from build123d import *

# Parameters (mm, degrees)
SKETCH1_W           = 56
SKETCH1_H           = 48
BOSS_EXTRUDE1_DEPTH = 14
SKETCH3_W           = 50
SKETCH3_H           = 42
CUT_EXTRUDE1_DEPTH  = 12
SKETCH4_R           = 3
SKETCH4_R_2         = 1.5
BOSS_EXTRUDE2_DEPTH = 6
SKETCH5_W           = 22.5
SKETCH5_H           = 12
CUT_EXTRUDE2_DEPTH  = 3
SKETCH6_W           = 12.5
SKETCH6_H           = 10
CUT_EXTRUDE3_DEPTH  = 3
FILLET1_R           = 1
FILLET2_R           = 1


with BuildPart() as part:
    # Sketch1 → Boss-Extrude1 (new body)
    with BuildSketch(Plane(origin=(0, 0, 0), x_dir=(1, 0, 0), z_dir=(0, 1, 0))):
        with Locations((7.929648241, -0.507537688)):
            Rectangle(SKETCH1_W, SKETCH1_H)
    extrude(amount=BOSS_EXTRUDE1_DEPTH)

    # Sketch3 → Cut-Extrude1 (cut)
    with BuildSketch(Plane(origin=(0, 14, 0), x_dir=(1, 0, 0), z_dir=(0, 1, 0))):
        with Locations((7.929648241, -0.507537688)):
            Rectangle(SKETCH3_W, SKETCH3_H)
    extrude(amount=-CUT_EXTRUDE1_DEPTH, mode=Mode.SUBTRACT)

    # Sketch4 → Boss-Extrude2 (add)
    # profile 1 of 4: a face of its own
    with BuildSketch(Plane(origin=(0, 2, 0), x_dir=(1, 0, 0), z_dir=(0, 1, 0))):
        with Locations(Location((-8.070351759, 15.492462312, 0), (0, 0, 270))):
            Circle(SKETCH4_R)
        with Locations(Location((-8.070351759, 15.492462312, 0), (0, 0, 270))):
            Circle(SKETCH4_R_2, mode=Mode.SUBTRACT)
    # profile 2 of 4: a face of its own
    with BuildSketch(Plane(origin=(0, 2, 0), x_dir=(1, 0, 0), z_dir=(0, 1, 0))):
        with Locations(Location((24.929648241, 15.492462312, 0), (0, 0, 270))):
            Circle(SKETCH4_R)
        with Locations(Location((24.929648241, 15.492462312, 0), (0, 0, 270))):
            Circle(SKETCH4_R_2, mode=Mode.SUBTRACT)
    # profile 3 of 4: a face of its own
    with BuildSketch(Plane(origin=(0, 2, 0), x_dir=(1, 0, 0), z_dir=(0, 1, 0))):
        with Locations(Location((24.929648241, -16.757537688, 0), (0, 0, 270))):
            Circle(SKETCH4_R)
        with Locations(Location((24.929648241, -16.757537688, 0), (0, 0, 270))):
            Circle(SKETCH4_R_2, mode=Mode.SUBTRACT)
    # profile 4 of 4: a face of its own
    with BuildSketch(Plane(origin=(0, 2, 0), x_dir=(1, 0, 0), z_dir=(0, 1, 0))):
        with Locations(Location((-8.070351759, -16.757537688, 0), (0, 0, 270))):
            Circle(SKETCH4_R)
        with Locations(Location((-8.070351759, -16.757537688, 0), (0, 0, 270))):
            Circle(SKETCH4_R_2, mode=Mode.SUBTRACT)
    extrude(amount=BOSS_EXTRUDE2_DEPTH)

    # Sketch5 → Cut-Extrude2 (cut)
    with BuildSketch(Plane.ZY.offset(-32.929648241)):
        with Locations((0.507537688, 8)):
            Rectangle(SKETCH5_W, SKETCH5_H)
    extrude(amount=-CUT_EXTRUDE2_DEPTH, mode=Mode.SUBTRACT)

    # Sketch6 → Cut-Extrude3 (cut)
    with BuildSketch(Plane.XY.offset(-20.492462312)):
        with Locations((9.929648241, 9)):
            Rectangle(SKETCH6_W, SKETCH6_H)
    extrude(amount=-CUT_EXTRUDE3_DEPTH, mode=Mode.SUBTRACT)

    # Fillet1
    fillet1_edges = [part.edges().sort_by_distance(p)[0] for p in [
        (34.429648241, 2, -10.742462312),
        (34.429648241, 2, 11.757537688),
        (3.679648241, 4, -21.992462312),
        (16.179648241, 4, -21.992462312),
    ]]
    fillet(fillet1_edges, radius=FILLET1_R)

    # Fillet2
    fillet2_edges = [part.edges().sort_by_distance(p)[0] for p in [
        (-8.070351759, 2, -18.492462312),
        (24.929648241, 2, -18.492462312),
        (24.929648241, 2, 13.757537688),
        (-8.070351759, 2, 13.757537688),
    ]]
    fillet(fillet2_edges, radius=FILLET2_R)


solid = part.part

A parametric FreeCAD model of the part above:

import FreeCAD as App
import Part
import Sketcher


def edges_at(feature, points):
    """Names of the edges that pass closest to the given points."""
    edges = feature.Shape.Edges
    near = lambda p: min(range(len(edges)), key=lambda i: edges[i].distToShape(Part.Vertex(*p))[0])
    return sorted({f"Edge{near(p) + 1}" for p in points})

doc = App.newDocument("Part")
body = doc.addObject("PartDesign::Body", "Body")

# Sketch on XZ plane
sketch1 = doc.addObject("Sketcher::SketchObject", "Sketch")
body.addObject(sketch1)
sketch1.AttachmentSupport = (doc.XZ_Plane, [""])
sketch1.MapMode = "FlatFace"
sketch1.addGeometry(Part.LineSegment(App.Vector(-20, -23, 0), App.Vector(-20, 25, 0)), False)
sketch1.addGeometry(Part.LineSegment(App.Vector(-20, 25, 0), App.Vector(36, 25, 0)), False)
sketch1.addGeometry(Part.LineSegment(App.Vector(36, 25, 0), App.Vector(36, -23, 0)), False)
sketch1.addGeometry(Part.LineSegment(App.Vector(36, -23, 0), App.Vector(-20, -23, 0)), False)
sketch1.addConstraint(Sketcher.Constraint("Coincident", 0, 2, 1, 1))
sketch1.addConstraint(Sketcher.Constraint("Coincident", 1, 2, 2, 1))
sketch1.addConstraint(Sketcher.Constraint("Coincident", 2, 2, 3, 1))
sketch1.addConstraint(Sketcher.Constraint("Coincident", 3, 2, 0, 1))
sketch1.addConstraint(Sketcher.Constraint("Vertical", 0))
sketch1.addConstraint(Sketcher.Constraint("Horizontal", 1))
sketch1.addConstraint(Sketcher.Constraint("Vertical", 2))
sketch1.addConstraint(Sketcher.Constraint("Horizontal", 3))
sketch1.addConstraint(Sketcher.Constraint("DistanceX", 1, 1, 1, 2, 56.0))
sketch1.addConstraint(Sketcher.Constraint("DistanceY", 0, 1, 0, 2, 48.0))
sketch1.addConstraint(Sketcher.Constraint("DistanceX", 0, 2, -1, 1, 20.070352))
sketch1.addConstraint(Sketcher.Constraint("DistanceY", -1, 1, 0, 2, 24.507538))
pad1 = doc.addObject("PartDesign::Pad", "Pad")
body.addObject(pad1)
pad1.Profile = sketch1
pad1.Length = 14
pad1.Reversed = True

# Sketch on XZ plane
sketch2 = doc.addObject("Sketcher::SketchObject", "Sketch001")
body.addObject(sketch2)
sketch2.AttachmentSupport = (doc.XZ_Plane, [""])
sketch2.MapMode = "FlatFace"
sketch2.AttachmentOffset = App.Placement(App.Vector(0, 0, -14), App.Rotation())
sketch2.addGeometry(Part.LineSegment(App.Vector(-17, -20, 0), App.Vector(-17, 22, 0)), False)
sketch2.addGeometry(Part.LineSegment(App.Vector(-17, 22, 0), App.Vector(33, 22, 0)), False)
sketch2.addGeometry(Part.LineSegment(App.Vector(33, 22, 0), App.Vector(33, -20, 0)), False)
sketch2.addGeometry(Part.LineSegment(App.Vector(33, -20, 0), App.Vector(-17, -20, 0)), False)
sketch2.addConstraint(Sketcher.Constraint("Coincident", 0, 2, 1, 1))
sketch2.addConstraint(Sketcher.Constraint("Coincident", 1, 2, 2, 1))
sketch2.addConstraint(Sketcher.Constraint("Coincident", 2, 2, 3, 1))
sketch2.addConstraint(Sketcher.Constraint("Coincident", 3, 2, 0, 1))
sketch2.addConstraint(Sketcher.Constraint("Vertical", 0))
sketch2.addConstraint(Sketcher.Constraint("Horizontal", 1))
sketch2.addConstraint(Sketcher.Constraint("Vertical", 2))
sketch2.addConstraint(Sketcher.Constraint("Horizontal", 3))
sketch2.addConstraint(Sketcher.Constraint("DistanceX", 1, 1, 1, 2, 50.0))
sketch2.addConstraint(Sketcher.Constraint("DistanceY", 0, 1, 0, 2, 42.0))
sketch2.addConstraint(Sketcher.Constraint("DistanceX", 0, 2, -1, 1, 17.070352))
sketch2.addConstraint(Sketcher.Constraint("DistanceY", -1, 1, 0, 2, 21.507538))
pocket1 = doc.addObject("PartDesign::Pocket", "Pocket")
body.addObject(pocket1)
pocket1.Profile = sketch2
pocket1.Length = 12
pocket1.Reversed = True

# Sketch on XZ plane
sketch3 = doc.addObject("Sketcher::SketchObject", "Sketch002")
body.addObject(sketch3)
sketch3.AttachmentSupport = (doc.XZ_Plane, [""])
sketch3.MapMode = "FlatFace"
sketch3.AttachmentOffset = App.Placement(App.Vector(0, 0, -2), App.Rotation())
sketch3.addGeometry(Part.Circle(App.Vector(-8.1, -15.5, 0), App.Vector(0, 0, 1), 3), False)
sketch3.addGeometry(Part.Circle(App.Vector(-8.1, -15.5, 0), App.Vector(0, 0, 1), 1.5), False)
sketch3.addGeometry(Part.Circle(App.Vector(24.9, -15.5, 0), App.Vector(0, 0, 1), 3), False)
sketch3.addGeometry(Part.Circle(App.Vector(24.9, -15.5, 0), App.Vector(0, 0, 1), 1.5), False)
sketch3.addGeometry(Part.Circle(App.Vector(24.9, 16.8, 0), App.Vector(0, 0, 1), 3), False)
sketch3.addGeometry(Part.Circle(App.Vector(24.9, 16.8, 0), App.Vector(0, 0, 1), 1.5), False)
sketch3.addGeometry(Part.Circle(App.Vector(-8.1, 16.8, 0), App.Vector(0, 0, 1), 3), False)
sketch3.addGeometry(Part.Circle(App.Vector(-8.1, 16.8, 0), App.Vector(0, 0, 1), 1.5), False)
sketch3.addConstraint(Sketcher.Constraint("Coincident", 1, 3, 0, 3))
sketch3.addConstraint(Sketcher.Constraint("Coincident", 3, 3, 2, 3))
sketch3.addConstraint(Sketcher.Constraint("Coincident", 5, 3, 4, 3))
sketch3.addConstraint(Sketcher.Constraint("Coincident", 7, 3, 6, 3))
sketch3.addConstraint(Sketcher.Constraint("Equal", 0, 2))
sketch3.addConstraint(Sketcher.Constraint("Equal", 1, 3))
sketch3.addConstraint(Sketcher.Constraint("Equal", 2, 4))
sketch3.addConstraint(Sketcher.Constraint("Equal", 3, 5))
sketch3.addConstraint(Sketcher.Constraint("Equal", 4, 6))
sketch3.addConstraint(Sketcher.Constraint("Equal", 5, 7))
sketch3.addConstraint(Sketcher.Constraint("Horizontal", 1, 3, 2, 3))
sketch3.addConstraint(Sketcher.Constraint("Horizontal", 5, 3, 6, 3))
sketch3.addConstraint(Sketcher.Constraint("Vertical", 3, 3, 4, 3))
sketch3.addConstraint(Sketcher.Constraint("Vertical", 1, 3, 6, 3))
sketch3.addConstraint(Sketcher.Constraint("Diameter", 0, 6.0))
sketch3.addConstraint(Sketcher.Constraint("Diameter", 1, 3.0))
sketch3.addConstraint(Sketcher.Constraint("DistanceX", 0, 3, 2, 3, 33.0))
sketch3.addConstraint(Sketcher.Constraint("DistanceY", 2, 3, 4, 3, 32.25))
sketch3.addConstraint(Sketcher.Constraint("DistanceX", 0, 3, -1, 1, 8.070352))
sketch3.addConstraint(Sketcher.Constraint("DistanceY", 0, 3, -1, 1, 15.492462))
pad2 = doc.addObject("PartDesign::Pad", "Pad001")
body.addObject(pad2)
pad2.Profile = sketch3
pad2.Length = 6
pad2.Reversed = True

# Sketch on YZ plane
sketch4 = doc.addObject("Sketcher::SketchObject", "Sketch003")
body.addObject(sketch4)
sketch4.AttachmentSupport = (doc.YZ_Plane, [""])
sketch4.MapMode = "FlatFace"
sketch4.AttachmentOffset = App.Placement(App.Vector(0, 0, 32.929648), App.Rotation())
sketch4.addGeometry(Part.LineSegment(App.Vector(14, -11, 0), App.Vector(2, -11, 0)), False)
sketch4.addGeometry(Part.LineSegment(App.Vector(2, -11, 0), App.Vector(2, 12, 0)), False)
sketch4.addGeometry(Part.LineSegment(App.Vector(2, 12, 0), App.Vector(14, 12, 0)), False)
sketch4.addGeometry(Part.LineSegment(App.Vector(14, 12, 0), App.Vector(14, -11, 0)), False)
sketch4.addConstraint(Sketcher.Constraint("Coincident", 0, 2, 1, 1))
sketch4.addConstraint(Sketcher.Constraint("Coincident", 1, 2, 2, 1))
sketch4.addConstraint(Sketcher.Constraint("Coincident", 2, 2, 3, 1))
sketch4.addConstraint(Sketcher.Constraint("Coincident", 3, 2, 0, 1))
sketch4.addConstraint(Sketcher.Constraint("Horizontal", 0))
sketch4.addConstraint(Sketcher.Constraint("Vertical", 1))
sketch4.addConstraint(Sketcher.Constraint("Horizontal", 2))
sketch4.addConstraint(Sketcher.Constraint("Vertical", 3))
sketch4.addConstraint(Sketcher.Constraint("DistanceX", 0, 2, 0, 1, 12.0))
sketch4.addConstraint(Sketcher.Constraint("DistanceY", 1, 1, 1, 2, 22.5))
sketch4.addConstraint(Sketcher.Constraint("DistanceX", -1, 1, 0, 2, 2.0))
sketch4.addConstraint(Sketcher.Constraint("DistanceY", 0, 2, -1, 1, 10.742462))
pocket2 = doc.addObject("PartDesign::Pocket", "Pocket001")
body.addObject(pocket2)
pocket2.Profile = sketch4
pocket2.Length = 3
pocket2.Reversed = True

# Sketch on XY plane
sketch5 = doc.addObject("Sketcher::SketchObject", "Sketch004")
body.addObject(sketch5)
sketch5.AttachmentSupport = (doc.XY_Plane, [""])
sketch5.MapMode = "FlatFace"
sketch5.AttachmentOffset = App.Placement(App.Vector(0, 0, -20.492462), App.Rotation())
sketch5.addGeometry(Part.LineSegment(App.Vector(4, 14, 0), App.Vector(4, 4, 0)), False)
sketch5.addGeometry(Part.LineSegment(App.Vector(4, 4, 0), App.Vector(16, 4, 0)), False)
sketch5.addGeometry(Part.LineSegment(App.Vector(16, 4, 0), App.Vector(16, 14, 0)), False)
sketch5.addGeometry(Part.LineSegment(App.Vector(16, 14, 0), App.Vector(4, 14, 0)), False)
sketch5.addConstraint(Sketcher.Constraint("Coincident", 0, 2, 1, 1))
sketch5.addConstraint(Sketcher.Constraint("Coincident", 1, 2, 2, 1))
sketch5.addConstraint(Sketcher.Constraint("Coincident", 2, 2, 3, 1))
sketch5.addConstraint(Sketcher.Constraint("Coincident", 3, 2, 0, 1))
sketch5.addConstraint(Sketcher.Constraint("Vertical", 0))
sketch5.addConstraint(Sketcher.Constraint("Horizontal", 1))
sketch5.addConstraint(Sketcher.Constraint("Vertical", 2))
sketch5.addConstraint(Sketcher.Constraint("Horizontal", 3))
sketch5.addConstraint(Sketcher.Constraint("DistanceY", 0, 2, 0, 1, 10.0))
sketch5.addConstraint(Sketcher.Constraint("DistanceX", 1, 1, 1, 2, 12.5))
sketch5.addConstraint(Sketcher.Constraint("DistanceY", -1, 1, 0, 2, 4.0))
sketch5.addConstraint(Sketcher.Constraint("DistanceX", -1, 1, 0, 2, 3.679648))
pocket3 = doc.addObject("PartDesign::Pocket", "Pocket002")
body.addObject(pocket3)
pocket3.Profile = sketch5
pocket3.Length = 3
doc.recompute()

fillet = doc.addObject("PartDesign::Fillet", "Fillet")
body.addObject(fillet)
fillet.Base = (pocket3, edges_at(pocket3, [
    (34.43, 2, -10.742),
    (34.43, 2, 11.758),
    (3.68, 4, -21.992),
    (16.18, 4, -21.992),
]))
fillet.Radius = 1
doc.recompute()

fillet2 = doc.addObject("PartDesign::Fillet", "Fillet001")
body.addObject(fillet2)
fillet2.Base = (fillet, edges_at(fillet, [
    (-8.07, 2, -18.492),
    (24.93, 2, -18.492),
    (24.93, 2, 13.758),
    (-8.07, 2, 13.758),
]))
fillet2.Radius = 1

doc.recompute()
